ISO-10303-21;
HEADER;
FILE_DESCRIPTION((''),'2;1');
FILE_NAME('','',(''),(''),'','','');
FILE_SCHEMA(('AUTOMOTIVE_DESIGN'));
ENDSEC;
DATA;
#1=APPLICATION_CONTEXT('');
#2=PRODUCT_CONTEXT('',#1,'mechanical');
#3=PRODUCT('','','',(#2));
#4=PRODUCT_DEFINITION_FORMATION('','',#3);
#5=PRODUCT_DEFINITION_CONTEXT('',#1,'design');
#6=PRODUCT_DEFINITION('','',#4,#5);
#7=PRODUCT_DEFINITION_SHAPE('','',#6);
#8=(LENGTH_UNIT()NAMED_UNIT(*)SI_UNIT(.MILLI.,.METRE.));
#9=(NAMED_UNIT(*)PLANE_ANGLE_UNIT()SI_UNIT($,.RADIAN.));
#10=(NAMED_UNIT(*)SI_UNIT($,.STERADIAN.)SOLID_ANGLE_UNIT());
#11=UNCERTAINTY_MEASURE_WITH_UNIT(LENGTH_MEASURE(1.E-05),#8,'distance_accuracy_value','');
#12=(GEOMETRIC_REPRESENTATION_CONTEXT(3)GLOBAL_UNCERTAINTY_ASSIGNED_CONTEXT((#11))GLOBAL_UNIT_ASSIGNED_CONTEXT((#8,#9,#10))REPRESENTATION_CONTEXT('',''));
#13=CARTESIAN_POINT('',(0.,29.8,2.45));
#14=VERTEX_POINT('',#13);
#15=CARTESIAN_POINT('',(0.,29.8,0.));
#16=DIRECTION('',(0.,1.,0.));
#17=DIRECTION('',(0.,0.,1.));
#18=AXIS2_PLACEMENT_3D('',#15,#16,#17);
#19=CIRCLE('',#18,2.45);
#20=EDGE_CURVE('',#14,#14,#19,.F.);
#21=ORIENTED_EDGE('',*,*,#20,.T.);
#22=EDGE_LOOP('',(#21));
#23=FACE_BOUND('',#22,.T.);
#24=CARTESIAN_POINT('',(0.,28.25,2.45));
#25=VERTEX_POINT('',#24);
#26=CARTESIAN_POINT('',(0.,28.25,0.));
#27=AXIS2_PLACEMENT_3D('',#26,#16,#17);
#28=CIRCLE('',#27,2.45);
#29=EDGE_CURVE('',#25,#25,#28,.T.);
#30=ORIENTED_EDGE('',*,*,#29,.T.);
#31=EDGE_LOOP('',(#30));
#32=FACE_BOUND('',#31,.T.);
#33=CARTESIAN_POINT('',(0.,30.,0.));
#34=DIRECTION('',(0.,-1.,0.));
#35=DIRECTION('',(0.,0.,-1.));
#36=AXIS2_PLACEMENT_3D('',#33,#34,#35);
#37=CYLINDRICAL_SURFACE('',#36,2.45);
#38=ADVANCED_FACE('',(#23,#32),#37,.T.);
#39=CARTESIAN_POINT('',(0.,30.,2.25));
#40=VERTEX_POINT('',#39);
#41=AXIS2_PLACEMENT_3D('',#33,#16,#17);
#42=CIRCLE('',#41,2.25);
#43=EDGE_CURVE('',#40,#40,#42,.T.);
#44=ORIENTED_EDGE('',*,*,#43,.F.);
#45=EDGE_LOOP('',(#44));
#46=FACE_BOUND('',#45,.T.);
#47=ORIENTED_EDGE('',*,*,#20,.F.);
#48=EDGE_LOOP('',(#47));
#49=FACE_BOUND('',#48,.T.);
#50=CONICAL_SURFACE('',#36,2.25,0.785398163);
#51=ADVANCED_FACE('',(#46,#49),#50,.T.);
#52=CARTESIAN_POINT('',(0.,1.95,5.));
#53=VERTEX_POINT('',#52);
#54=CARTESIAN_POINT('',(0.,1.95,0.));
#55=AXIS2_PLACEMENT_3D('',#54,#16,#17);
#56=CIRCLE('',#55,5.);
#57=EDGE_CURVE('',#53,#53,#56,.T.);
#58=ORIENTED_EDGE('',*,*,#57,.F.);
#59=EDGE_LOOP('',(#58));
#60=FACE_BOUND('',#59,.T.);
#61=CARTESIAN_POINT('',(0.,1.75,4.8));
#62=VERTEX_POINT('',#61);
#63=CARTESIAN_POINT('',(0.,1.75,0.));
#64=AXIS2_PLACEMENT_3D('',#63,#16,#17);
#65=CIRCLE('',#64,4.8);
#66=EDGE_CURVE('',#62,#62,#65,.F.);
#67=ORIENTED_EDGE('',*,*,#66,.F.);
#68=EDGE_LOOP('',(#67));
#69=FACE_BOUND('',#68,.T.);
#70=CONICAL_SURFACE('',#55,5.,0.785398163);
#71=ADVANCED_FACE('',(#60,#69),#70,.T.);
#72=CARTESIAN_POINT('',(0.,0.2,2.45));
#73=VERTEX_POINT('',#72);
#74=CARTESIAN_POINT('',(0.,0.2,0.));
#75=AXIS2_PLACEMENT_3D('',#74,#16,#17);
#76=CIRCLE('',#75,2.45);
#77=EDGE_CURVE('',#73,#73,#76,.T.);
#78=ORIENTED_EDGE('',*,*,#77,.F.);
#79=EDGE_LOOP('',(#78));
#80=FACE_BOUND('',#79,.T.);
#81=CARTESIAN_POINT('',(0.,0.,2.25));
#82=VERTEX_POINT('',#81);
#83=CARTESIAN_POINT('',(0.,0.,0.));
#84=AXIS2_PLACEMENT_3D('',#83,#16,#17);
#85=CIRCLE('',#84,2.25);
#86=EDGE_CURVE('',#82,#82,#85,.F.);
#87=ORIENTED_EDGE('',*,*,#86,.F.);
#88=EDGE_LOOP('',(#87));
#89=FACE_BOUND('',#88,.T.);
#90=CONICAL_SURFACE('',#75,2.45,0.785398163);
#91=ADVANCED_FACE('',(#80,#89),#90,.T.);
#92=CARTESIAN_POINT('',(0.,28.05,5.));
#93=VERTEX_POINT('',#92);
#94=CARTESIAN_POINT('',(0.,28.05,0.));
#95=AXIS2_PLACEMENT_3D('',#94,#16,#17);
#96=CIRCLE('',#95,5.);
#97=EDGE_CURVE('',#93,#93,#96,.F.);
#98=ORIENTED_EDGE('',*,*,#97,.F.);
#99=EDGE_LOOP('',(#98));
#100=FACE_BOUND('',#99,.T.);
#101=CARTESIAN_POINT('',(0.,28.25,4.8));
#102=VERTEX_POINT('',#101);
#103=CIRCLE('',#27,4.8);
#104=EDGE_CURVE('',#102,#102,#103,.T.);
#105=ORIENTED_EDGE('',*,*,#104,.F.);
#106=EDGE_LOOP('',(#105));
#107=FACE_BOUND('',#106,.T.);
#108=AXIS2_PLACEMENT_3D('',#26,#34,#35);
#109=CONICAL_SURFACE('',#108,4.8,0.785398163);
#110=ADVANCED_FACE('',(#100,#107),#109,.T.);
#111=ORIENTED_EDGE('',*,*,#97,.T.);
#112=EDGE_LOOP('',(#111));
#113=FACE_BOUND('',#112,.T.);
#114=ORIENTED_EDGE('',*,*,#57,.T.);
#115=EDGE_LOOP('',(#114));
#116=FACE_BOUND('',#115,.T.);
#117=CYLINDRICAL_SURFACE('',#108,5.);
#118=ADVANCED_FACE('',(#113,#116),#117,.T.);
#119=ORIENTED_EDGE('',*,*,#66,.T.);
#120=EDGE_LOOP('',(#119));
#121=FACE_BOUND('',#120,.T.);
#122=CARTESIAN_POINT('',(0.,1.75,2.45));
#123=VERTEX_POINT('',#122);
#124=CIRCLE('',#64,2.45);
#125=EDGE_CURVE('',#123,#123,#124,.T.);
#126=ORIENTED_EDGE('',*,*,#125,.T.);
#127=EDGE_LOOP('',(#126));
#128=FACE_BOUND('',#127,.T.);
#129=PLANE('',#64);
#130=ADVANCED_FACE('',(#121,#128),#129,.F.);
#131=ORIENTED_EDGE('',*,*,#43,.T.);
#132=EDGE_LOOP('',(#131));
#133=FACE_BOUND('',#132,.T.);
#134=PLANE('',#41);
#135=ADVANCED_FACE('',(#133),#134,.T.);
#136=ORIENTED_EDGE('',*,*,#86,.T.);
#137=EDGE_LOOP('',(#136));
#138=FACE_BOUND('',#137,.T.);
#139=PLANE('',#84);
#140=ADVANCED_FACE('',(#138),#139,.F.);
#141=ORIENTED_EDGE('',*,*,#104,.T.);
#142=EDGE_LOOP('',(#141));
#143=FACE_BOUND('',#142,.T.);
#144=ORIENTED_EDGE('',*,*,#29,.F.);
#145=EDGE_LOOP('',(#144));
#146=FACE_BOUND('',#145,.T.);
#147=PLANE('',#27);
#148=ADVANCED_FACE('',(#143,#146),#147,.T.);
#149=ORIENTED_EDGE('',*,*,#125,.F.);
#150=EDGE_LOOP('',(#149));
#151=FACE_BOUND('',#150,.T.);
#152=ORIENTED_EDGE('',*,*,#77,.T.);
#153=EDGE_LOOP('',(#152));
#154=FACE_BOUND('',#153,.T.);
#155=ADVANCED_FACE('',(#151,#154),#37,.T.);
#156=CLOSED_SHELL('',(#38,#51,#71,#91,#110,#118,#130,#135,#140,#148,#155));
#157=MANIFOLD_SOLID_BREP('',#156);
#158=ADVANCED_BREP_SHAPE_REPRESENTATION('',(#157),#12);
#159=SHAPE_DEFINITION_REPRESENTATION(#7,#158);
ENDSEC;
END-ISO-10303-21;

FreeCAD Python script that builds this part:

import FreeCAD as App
import Part
import Sketcher
from FreeCAD import Vector


def edges_at(feature, points):
    """Names of the edges that pass closest to the given points."""
    edges = feature.Shape.Edges
    near = lambda p: min(range(len(edges)), key=lambda i: edges[i].distToShape(Part.Vertex(*p))[0])
    return sorted({f"Edge{near(p) + 1}" for p in points})

doc = App.newDocument("Part")
params = doc.addObject("Spreadsheet::Sheet", "Params")
for row, (alias, value) in enumerate([
    ("sketch1_diameter", "4.9 mm"),
    ("pad1_length", "30 mm"),
    ("chamfer_size", "0.2 mm"),
    ("sketch2_diameter", "10 mm"),
    ("pad2_length", "26.5 mm"),
    ("chamfer2_size", "0.2 mm"),
], start=1):
    params.set(f"A{row}", alias)
    params.set(f"B{row}", "=" + value)
    params.setAlias(f"B{row}", alias)

body = doc.addObject("PartDesign::Body", "Body")

sketch1 = doc.addObject("Sketcher::SketchObject", "Sketch")
body.addObject(sketch1)
sketch1.AttachmentSupport = (doc.XZ_Plane, [""])
sketch1.MapMode = "FlatFace"
sketch1.addGeometry(Part.Circle(Vector(0, 0, 0), Vector(0, 0, 1), 2.5), False)
sketch1.addConstraint([
    Sketcher.Constraint("Coincident", 0, 3, -1, 1),
    Sketcher.Constraint("Diameter", 0, 4.9),
])
sketch1.setExpression("Constraints[1]", "Params.sketch1_diameter")
pad1 = doc.addObject("PartDesign::Pad", "Pad")
body.addObject(pad1)
pad1.Profile = sketch1
pad1.setExpression("Length", "Params.pad1_length")
pad1.Reversed = True
doc.recompute()

chamfer = doc.addObject("PartDesign::Chamfer", "Chamfer")
body.addObject(chamfer)
chamfer.Base = (pad1, edges_at(pad1, [(0, 0, -2.45), (0, 30, -2.45)]))
chamfer.setExpression("Size", "Params.chamfer_size")

sketch2 = doc.addObject("Sketcher::SketchObject", "Sketch001")
body.addObject(sketch2)
sketch2.AttachmentSupport = (doc.XZ_Plane, [""])
sketch2.MapMode = "FlatFace"
sketch2.AttachmentOffset = App.Placement(Vector(0, 0, -15), App.Rotation())
sketch2.addGeometry(Part.Circle(Vector(0, 0, 0), Vector(0, 0, 1), 5), False)
sketch2.addConstraint([
    Sketcher.Constraint("Coincident", 0, 3, -1, 1),
    Sketcher.Constraint("Diameter", 0, 10.0),
])
sketch2.setExpression("Constraints[1]", "Params.sketch2_diameter")
pad2 = doc.addObject("PartDesign::Pad", "Pad001")
body.addObject(pad2)
pad2.Profile = sketch2
pad2.setExpression("Length", "Params.pad2_length")
pad2.Midplane = True
doc.recompute()

chamfer2 = doc.addObject("PartDesign::Chamfer", "Chamfer001")
body.addObject(chamfer2)
chamfer2.Base = (pad2, edges_at(pad2, [(0, 1.75, -5), (0, 28.25, -5)]))
chamfer2.setExpression("Size", "Params.chamfer2_size")

doc.recompute()
